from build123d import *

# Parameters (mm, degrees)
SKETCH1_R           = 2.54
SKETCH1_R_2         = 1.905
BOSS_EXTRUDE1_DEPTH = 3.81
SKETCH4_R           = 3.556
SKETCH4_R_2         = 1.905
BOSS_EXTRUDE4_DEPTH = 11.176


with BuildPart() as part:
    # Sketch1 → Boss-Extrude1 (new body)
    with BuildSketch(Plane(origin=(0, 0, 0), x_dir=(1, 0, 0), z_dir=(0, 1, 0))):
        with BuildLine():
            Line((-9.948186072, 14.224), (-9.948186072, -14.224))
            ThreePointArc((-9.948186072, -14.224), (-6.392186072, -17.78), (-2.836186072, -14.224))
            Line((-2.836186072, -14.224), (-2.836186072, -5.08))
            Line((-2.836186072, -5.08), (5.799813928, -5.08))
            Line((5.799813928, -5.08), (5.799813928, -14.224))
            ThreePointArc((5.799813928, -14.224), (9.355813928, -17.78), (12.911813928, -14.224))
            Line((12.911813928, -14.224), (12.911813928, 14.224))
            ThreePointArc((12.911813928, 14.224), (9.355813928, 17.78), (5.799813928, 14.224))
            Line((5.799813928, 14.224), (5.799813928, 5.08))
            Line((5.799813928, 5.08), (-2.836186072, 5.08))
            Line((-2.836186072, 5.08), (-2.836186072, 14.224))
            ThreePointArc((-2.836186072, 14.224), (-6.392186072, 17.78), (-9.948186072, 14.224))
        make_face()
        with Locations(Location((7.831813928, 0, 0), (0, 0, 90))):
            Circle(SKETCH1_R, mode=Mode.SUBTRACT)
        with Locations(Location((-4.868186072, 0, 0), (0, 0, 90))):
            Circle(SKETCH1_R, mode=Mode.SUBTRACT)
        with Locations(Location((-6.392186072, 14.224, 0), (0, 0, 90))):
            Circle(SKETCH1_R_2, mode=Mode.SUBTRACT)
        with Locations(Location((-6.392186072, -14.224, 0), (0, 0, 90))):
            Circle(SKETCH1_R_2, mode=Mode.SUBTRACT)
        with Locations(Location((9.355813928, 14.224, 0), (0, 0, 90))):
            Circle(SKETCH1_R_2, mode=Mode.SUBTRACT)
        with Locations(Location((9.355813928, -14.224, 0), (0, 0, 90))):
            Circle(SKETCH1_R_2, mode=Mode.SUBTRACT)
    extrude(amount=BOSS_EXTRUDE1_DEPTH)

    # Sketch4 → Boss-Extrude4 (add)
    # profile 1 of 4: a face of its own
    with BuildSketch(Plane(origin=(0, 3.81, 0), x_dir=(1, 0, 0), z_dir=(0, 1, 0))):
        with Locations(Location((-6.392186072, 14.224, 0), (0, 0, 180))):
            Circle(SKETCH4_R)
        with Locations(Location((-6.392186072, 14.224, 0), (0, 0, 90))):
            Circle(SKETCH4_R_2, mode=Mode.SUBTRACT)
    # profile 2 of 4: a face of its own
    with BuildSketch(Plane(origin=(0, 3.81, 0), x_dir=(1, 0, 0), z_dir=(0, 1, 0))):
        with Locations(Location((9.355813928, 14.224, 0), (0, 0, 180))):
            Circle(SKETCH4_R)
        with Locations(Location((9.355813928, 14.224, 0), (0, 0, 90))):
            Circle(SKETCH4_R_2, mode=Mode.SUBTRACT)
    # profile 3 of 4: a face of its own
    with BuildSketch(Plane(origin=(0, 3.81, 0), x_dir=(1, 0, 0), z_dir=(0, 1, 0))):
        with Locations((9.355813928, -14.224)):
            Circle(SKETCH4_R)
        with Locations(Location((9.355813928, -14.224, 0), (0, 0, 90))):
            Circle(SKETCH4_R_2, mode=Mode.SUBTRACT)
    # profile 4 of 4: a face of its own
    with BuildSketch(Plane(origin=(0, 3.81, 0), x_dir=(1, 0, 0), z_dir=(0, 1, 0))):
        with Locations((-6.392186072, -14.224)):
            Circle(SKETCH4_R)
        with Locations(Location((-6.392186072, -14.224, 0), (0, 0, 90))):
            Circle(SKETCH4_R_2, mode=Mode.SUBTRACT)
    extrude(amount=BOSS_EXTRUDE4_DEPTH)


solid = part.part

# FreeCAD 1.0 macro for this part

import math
import FreeCAD as App
import Part
import Sketcher

V = App.Vector
Q = App.Units.Quantity

doc = App.newDocument("Part")
body = doc.addObject("PartDesign::Body", "Body")

# Sketch on XZ plane
sketch1 = body.newObject("Sketcher::SketchObject", "Sketch")
sketch1.AttachmentSupport = (doc.getObject("XZ_Plane"), [""])
sketch1.MapMode = "FlatFace"
sketch1.addGeometry([
    Part.LineSegment(V(-9.948186, -14.224, 0), V(-9.948186, 14.224, 0)),  # 0
    Part.ArcOfCircle(Part.Circle(V(-6.392186, 14.224, 0), V(0, 0, 1), 3.556), math.radians(0), math.radians(180)),  # 1
    Part.LineSegment(V(-2.836186, 14.224, 0), V(-2.836186, 5.08, 0)),  # 2
    Part.LineSegment(V(-2.836186, 5.08, 0), V(5.799814, 5.08, 0)),  # 3
    Part.LineSegment(V(5.799814, 5.08, 0), V(5.799814, 14.224, 0)),  # 4
    Part.ArcOfCircle(Part.Circle(V(9.355814, 14.224, 0), V(0, 0, 1), 3.556), math.radians(0), math.radians(180)),  # 5
    Part.LineSegment(V(12.911814, 14.224, 0), V(12.911814, -14.224, 0)),  # 6
    Part.ArcOfCircle(Part.Circle(V(9.355814, -14.224, 0), V(0, 0, 1), 3.556), math.radians(180), math.radians(360)),  # 7
    Part.LineSegment(V(5.799814, -14.224, 0), V(5.799814, -5.08, 0)),  # 8
    Part.LineSegment(V(5.799814, -5.08, 0), V(-2.836186, -5.08, 0)),  # 9
    Part.LineSegment(V(-2.836186, -5.08, 0), V(-2.836186, -14.224, 0)),  # 10
    Part.ArcOfCircle(Part.Circle(V(-6.392186, -14.224, 0), V(0, 0, 1), 3.556), math.radians(180), math.radians(360)),  # 11
    Part.Circle(V(-6.392186, 14.224, 0), V(0, 0, 1), 1.905),  # 12
    Part.Circle(V(9.355814, 14.224, 0), V(0, 0, 1), 1.905),  # 13
    Part.Circle(V(-4.868186, 0, 0), V(0, 0, 1), 2.54),  # 14
    Part.Circle(V(-6.392186, -14.224, 0), V(0, 0, 1), 1.905),  # 15
    Part.Circle(V(7.831814, 0, 0), V(0, 0, 1), 2.54),  # 16
    Part.Circle(V(9.355814, -14.224, 0), V(0, 0, 1), 1.905),  # 17
], False)
sketch1.addConstraint([
    Sketcher.Constraint("Tangent", 0, 2, 1, 2),
    Sketcher.Constraint("Tangent", 1, 1, 2, 1),
    Sketcher.Constraint("Coincident", 2, 2, 3, 1),
    Sketcher.Constraint("Coincident", 3, 2, 4, 1),
    Sketcher.Constraint("Tangent", 4, 2, 5, 2),
    Sketcher.Constraint("Tangent", 5, 1, 6, 1),
    Sketcher.Constraint("Tangent", 6, 2, 7, 2),
    Sketcher.Constraint("Tangent", 7, 1, 8, 1),
    Sketcher.Constraint("Coincident", 8, 2, 9, 1),
    Sketcher.Constraint("Coincident", 9, 2, 10, 1),
    Sketcher.Constraint("Tangent", 10, 2, 11, 2),
    Sketcher.Constraint("Tangent", 11, 1, 0, 1),
    Sketcher.Constraint("Vertical", 0),
    Sketcher.Constraint("Vertical", 2),
    Sketcher.Constraint("Horizontal", 3),
    Sketcher.Constraint("Vertical", 4),
    Sketcher.Constraint("Vertical", 6),
    Sketcher.Constraint("Vertical", 8),
    Sketcher.Constraint("Horizontal", 9),
    Sketcher.Constraint("Vertical", 10),
    Sketcher.Constraint("Coincident", 12, 3, 1, 3),
    Sketcher.Constraint("Coincident", 13, 3, 5, 3),
    Sketcher.Constraint("Coincident", 15, 3, 11, 3),
    Sketcher.Constraint("Coincident", 17, 3, 7, 3),
    Sketcher.Constraint("Equal", 1, 5),
    Sketcher.Constraint("Equal", 5, 7),
    Sketcher.Constraint("Equal", 7, 11),
    Sketcher.Constraint("Equal", 12, 13),
    Sketcher.Constraint("Equal", 13, 15),
    Sketcher.Constraint("Equal", 14, 16),
    Sketcher.Constraint("Equal", 15, 17),
    Sketcher.Constraint("PointOnObject", 14, 3, -1),
    Sketcher.Constraint("PointOnObject", 16, 3, -1),
    Sketcher.Constraint("Horizontal", 1, 3, 5, 3),
    Sketcher.Constraint("Horizontal", 7, 3, 11, 3),
    Sketcher.Constraint("Equal", 4, 8),
    Sketcher.Constraint("Diameter", 14, Q("0.2 in")),
    Sketcher.Constraint("Diameter", 12, Q("0.15 in")),
    Sketcher.Constraint("Radius", 1, Q("0.14 in")),
    Sketcher.Constraint("DistanceX", 3, 1, 3, 2, Q("0.34 in")),
    Sketcher.Constraint("DistanceY", 0, 1, 0, 2, Q("1.12 in")),
    Sketcher.Constraint("DistanceY", 2, 2, 2, 1, Q("0.36 in")),
    Sketcher.Constraint("DistanceY", -1, 1, 2, 2, Q("0.2 in")),
    Sketcher.Constraint("DistanceX", 14, 3, 16, 3, Q("0.5 in")),
    Sketcher.Constraint("DistanceX", 0, 2, 14, 3, Q("0.2 in")),
    Sketcher.Constraint("DistanceX", 1, 3, -1, 1, 6.392186),
])
pad1 = body.newObject("PartDesign::Pad", "Pad")
pad1.Profile = sketch1
pad1.Length = Q("0.15 in")
pad1.Reversed = True

# Sketch on XZ plane
sketch2 = body.newObject("Sketcher::SketchObject", "Sketch001")
sketch2.AttachmentSupport = (doc.getObject("XZ_Plane"), [""])
sketch2.MapMode = "FlatFace"
sketch2.AttachmentOffset = App.Placement(V(0, 0, -0.15 * 25.4), App.Rotation())
sketch2.addGeometry([
    Part.Circle(V(-6.392186, -14.224, 0), V(0, 0, 1), 3.556),  # 0
    Part.Circle(V(-6.392186, -14.224, 0), V(0, 0, 1), 1.905),  # 1
    Part.Circle(V(9.355814, -14.224, 0), V(0, 0, 1), 3.556),  # 2
    Part.Circle(V(9.355814, -14.224, 0), V(0, 0, 1), 1.905),  # 3
    Part.Circle(V(9.355814, 14.224, 0), V(0, 0, 1), 3.556),  # 4
    Part.Circle(V(9.355814, 14.224, 0), V(0, 0, 1), 1.905),  # 5
    Part.Circle(V(-6.392186, 14.224, 0), V(0, 0, 1), 3.556),  # 6
    Part.Circle(V(-6.392186, 14.224, 0), V(0, 0, 1), 1.905),  # 7
], False)
sketch2.addConstraint([
    Sketcher.Constraint("Coincident", 1, 3, 0, 3),
    Sketcher.Constraint("Coincident", 3, 3, 2, 3),
    Sketcher.Constraint("Coincident", 5, 3, 4, 3),
    Sketcher.Constraint("Coincident", 7, 3, 6, 3),
    Sketcher.Constraint("Equal", 0, 2),
    Sketcher.Constraint("Equal", 1, 3),
    Sketcher.Constraint("Equal", 2, 4),
    Sketcher.Constraint("Equal", 3, 5),
    Sketcher.Constraint("Equal", 4, 6),
    Sketcher.Constraint("Equal", 5, 7),
    Sketcher.Constraint("Symmetric", 2, 3, 4, 3, -1),
    Sketcher.Constraint("Symmetric", 0, 3, 6, 3, -1),
    Sketcher.Constraint("Horizontal", 1, 3, 2, 3),
    Sketcher.Constraint("Diameter", 0, Q("0.28 in")),
    Sketcher.Constraint("Diameter", 1, Q("0.15 in")),
    Sketcher.Constraint("DistanceY", 0, 3, -1, 1, Q("0.56 in")),
    Sketcher.Constraint("DistanceX", 0, 3, 2, 3, Q("0.62 in")),
    Sketcher.Constraint("DistanceX", 0, 3, -1, 1, 6.392186),
])
pad2 = body.newObject("PartDesign::Pad", "Pad001")
pad2.Profile = sketch2
pad2.Length = Q("0.44 in")
pad2.Reversed = True

doc.recompute()
